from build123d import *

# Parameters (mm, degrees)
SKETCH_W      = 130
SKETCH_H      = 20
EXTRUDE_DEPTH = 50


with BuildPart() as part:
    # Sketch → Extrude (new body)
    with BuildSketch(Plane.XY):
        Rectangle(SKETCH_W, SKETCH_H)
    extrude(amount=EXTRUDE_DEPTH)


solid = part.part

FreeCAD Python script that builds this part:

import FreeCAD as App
import Part
import Sketcher

V = App.Vector

doc = App.newDocument("Part")
body = doc.addObject("PartDesign::Body", "Body")

sketch1 = body.newObject("Sketcher::SketchObject", "Sketch")
sketch1.AttachmentSupport = (doc.getObject("XY_Plane"), [""])
sketch1.MapMode = "FlatFace"
sketch1.addGeometry(Part.LineSegment(V(-65, 10, 0), V(-65, -10, 0)), False)
sketch1.addGeometry(Part.LineSegment(V(-65, -10, 0), V(65, -10, 0)), False)
sketch1.addGeometry(Part.LineSegment(V(65, -10, 0), V(65, 10, 0)), False)
sketch1.addGeometry(Part.LineSegment(V(65, 10, 0), V(-65, 10, 0)), False)
sketch1.addConstraint(Sketcher.Constraint("Coincident", 0, 2, 1, 1))
sketch1.addConstraint(Sketcher.Constraint("Coincident", 1, 2, 2, 1))
sketch1.addConstraint(Sketcher.Constraint("Coincident", 2, 2, 3, 1))
sketch1.addConstraint(Sketcher.Constraint("Coincident", 3, 2, 0, 1))
sketch1.addConstraint(Sketcher.Constraint("Vertical", 0))
sketch1.addConstraint(Sketcher.Constraint("Horizontal", 1))
sketch1.addConstraint(Sketcher.Constraint("Vertical", 2))
sketch1.addConstraint(Sketcher.Constraint("Horizontal", 3))
sketch1.addConstraint(Sketcher.Constraint("Symmetric", 0, 2, 2, 2, -1, 1))
sketch1.addConstraint(Sketcher.Constraint("DistanceX", 1, 1, 1, 2, 130.0))
sketch1.addConstraint(Sketcher.Constraint("DistanceY", 0, 2, 0, 1, 20.0))
pad1 = body.newObject("PartDesign::Pad", "Pad")
pad1.Profile = sketch1
pad1.Length = 50

doc.recompute()
